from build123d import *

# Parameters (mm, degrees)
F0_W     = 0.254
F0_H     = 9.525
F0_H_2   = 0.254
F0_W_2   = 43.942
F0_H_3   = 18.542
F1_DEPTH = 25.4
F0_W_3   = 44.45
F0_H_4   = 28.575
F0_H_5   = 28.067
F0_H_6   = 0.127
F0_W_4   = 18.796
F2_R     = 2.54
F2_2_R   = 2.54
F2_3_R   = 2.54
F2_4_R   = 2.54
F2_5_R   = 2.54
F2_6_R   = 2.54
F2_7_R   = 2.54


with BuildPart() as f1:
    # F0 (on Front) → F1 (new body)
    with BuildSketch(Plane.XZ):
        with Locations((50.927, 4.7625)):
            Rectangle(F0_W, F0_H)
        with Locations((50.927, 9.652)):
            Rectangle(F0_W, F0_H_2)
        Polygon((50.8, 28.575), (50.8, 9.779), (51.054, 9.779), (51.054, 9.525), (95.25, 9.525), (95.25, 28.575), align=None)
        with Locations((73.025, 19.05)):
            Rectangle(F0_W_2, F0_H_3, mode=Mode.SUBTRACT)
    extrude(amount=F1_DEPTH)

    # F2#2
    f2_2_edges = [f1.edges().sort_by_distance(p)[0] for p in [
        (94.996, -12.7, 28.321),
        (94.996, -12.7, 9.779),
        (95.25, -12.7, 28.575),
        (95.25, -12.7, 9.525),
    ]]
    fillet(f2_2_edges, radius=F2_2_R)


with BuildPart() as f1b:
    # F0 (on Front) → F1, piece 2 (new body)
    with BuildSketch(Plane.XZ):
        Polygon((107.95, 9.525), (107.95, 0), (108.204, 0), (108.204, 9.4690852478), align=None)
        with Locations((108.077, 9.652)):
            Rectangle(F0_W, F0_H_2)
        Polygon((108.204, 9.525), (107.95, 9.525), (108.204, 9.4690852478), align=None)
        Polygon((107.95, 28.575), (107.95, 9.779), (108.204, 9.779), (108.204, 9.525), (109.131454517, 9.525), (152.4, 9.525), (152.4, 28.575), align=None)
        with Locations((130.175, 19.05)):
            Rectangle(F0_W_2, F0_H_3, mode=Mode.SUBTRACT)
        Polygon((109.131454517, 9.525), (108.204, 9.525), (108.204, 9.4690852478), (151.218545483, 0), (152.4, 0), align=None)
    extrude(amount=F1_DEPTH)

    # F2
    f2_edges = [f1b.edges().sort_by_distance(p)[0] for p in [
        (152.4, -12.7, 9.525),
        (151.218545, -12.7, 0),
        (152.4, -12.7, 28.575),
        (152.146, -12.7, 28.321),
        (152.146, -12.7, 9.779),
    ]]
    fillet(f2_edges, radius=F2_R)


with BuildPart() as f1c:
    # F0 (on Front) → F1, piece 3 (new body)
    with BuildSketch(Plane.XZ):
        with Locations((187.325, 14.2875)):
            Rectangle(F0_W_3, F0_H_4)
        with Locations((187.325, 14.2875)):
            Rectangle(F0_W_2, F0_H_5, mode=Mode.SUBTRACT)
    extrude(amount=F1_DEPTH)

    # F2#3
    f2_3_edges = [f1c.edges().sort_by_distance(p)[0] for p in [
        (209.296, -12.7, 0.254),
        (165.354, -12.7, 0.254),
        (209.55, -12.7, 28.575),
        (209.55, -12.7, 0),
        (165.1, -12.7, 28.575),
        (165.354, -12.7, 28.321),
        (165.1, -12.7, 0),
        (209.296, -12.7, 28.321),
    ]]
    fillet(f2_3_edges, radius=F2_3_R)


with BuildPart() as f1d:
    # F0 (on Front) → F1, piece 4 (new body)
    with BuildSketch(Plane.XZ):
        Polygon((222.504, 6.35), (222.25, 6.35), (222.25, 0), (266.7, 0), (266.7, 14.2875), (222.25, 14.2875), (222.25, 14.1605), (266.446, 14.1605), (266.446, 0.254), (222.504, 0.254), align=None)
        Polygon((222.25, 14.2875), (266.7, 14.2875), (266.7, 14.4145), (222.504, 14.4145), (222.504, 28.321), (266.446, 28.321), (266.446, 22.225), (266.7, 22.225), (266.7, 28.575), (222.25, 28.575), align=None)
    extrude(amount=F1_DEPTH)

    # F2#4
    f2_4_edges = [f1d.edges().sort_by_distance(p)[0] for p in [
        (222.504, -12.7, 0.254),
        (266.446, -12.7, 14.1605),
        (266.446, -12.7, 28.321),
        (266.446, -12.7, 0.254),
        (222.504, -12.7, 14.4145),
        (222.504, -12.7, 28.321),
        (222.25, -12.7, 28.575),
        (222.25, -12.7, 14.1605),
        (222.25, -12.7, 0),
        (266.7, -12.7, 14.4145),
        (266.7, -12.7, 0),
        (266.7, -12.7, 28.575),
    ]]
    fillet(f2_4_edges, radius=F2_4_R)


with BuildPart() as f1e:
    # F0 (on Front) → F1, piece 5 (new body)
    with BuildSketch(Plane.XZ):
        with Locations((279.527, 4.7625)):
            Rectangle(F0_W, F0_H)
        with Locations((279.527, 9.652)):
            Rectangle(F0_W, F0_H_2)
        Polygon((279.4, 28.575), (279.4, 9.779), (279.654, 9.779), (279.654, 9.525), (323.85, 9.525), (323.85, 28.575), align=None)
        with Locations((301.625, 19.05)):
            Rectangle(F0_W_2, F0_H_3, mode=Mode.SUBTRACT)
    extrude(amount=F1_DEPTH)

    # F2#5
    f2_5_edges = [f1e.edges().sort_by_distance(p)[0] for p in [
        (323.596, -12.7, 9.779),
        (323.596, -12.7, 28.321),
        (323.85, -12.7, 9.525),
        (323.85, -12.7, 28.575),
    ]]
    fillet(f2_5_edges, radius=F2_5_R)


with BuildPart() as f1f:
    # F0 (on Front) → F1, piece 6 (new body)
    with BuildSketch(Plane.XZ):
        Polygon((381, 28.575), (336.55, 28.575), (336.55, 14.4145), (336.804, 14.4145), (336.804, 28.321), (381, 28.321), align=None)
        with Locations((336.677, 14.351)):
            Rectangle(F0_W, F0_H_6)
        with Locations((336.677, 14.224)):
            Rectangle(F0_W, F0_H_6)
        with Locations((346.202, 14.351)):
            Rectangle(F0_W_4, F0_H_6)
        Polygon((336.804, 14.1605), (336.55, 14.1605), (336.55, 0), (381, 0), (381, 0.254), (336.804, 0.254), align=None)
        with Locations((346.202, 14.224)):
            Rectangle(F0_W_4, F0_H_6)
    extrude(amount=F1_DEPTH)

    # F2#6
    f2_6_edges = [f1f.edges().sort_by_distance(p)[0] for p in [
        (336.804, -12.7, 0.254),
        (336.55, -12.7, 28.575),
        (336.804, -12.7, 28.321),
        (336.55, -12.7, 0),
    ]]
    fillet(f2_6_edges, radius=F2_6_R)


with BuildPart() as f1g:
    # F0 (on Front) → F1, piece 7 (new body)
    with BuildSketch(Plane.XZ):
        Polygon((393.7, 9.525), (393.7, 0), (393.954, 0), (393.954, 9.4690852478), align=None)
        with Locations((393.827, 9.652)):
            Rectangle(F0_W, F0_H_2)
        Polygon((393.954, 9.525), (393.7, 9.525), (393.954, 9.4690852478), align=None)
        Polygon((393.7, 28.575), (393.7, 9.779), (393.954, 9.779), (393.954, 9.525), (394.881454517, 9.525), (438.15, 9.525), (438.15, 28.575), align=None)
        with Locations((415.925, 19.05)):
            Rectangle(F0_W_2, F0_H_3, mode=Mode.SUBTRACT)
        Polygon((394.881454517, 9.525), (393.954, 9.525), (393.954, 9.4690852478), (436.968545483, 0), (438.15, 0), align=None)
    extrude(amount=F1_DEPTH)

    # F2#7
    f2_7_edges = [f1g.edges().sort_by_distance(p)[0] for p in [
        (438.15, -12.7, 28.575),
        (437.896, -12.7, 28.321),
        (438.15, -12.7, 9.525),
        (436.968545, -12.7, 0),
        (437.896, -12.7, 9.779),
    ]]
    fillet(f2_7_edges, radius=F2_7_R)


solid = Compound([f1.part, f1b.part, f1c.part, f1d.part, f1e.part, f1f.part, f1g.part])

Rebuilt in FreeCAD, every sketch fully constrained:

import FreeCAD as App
import Part
import Sketcher

V = App.Vector
Q = App.Units.Quantity


def edges_at(feature, points):
    """Names of the edges that pass closest to the given points."""
    edges = feature.Shape.Edges
    near = lambda p: min(range(len(edges)), key=lambda i: edges[i].distToShape(Part.Vertex(*p))[0])
    return sorted({f"Edge{near(p) + 1}" for p in points})


def add_polygon(sketch, points):
    """Adds a closed chain of lines whose ends are joined by coincident constraints."""
    first, n = sketch.GeometryCount, len(points)
    for a, b in zip(points, points[1:] + points[:1]):
        sketch.addGeometry(Part.LineSegment(App.Vector(*a, 0), App.Vector(*b, 0)), False)
    for i in range(n):
        sketch.addConstraint(Sketcher.Constraint("Coincident", first + i, 2, first + (i + 1) % n, 1))

doc = App.newDocument("Part")
body = doc.addObject("PartDesign::Body", "Body")

sketch1 = body.newObject("Sketcher::SketchObject", "Sketch")
sketch1.AttachmentSupport = (doc.getObject("XZ_Plane"), [""])
sketch1.MapMode = "FlatFace"
add_polygon(sketch1, [(50.8, 0), (51.054, 0), (51.054, 9.525), (95.25, 9.525), (95.25, 28.575), (50.8, 28.575)])
add_polygon(sketch1, [(94.996, 9.779), (51.054, 9.779), (51.054, 28.321), (94.996, 28.321)])
sketch1.addConstraint(Sketcher.Constraint("Horizontal", 0))
sketch1.addConstraint(Sketcher.Constraint("Vertical", 1))
sketch1.addConstraint(Sketcher.Constraint("Horizontal", 2))
sketch1.addConstraint(Sketcher.Constraint("Vertical", 3))
sketch1.addConstraint(Sketcher.Constraint("Horizontal", 4))
sketch1.addConstraint(Sketcher.Constraint("Vertical", 5))
sketch1.addConstraint(Sketcher.Constraint("Horizontal", 6))
sketch1.addConstraint(Sketcher.Constraint("Vertical", 7))
sketch1.addConstraint(Sketcher.Constraint("Horizontal", 8))
sketch1.addConstraint(Sketcher.Constraint("Vertical", 9))
sketch1.addConstraint(Sketcher.Constraint("PointOnObject", 0, 2, -1))
sketch1.addConstraint(Sketcher.Constraint("Vertical", 1, 2, 6, 2))
sketch1.addConstraint(Sketcher.Constraint("DistanceX", -1, 1, 4, 2, Q("2 in")))
sketch1.addConstraint(Sketcher.Constraint("DistanceX", 0, 1, 0, 2, Q("0.01 in")))
sketch1.addConstraint(Sketcher.Constraint("DistanceX", 2, 1, 2, 2, Q("1.74 in")))
sketch1.addConstraint(Sketcher.Constraint("DistanceX", 6, 2, 6, 1, Q("1.73 in")))
sketch1.addConstraint(Sketcher.Constraint("DistanceY", 3, 1, 3, 2, Q("0.75 in")))
sketch1.addConstraint(Sketcher.Constraint("DistanceY", 7, 1, 7, 2, Q("0.73 in")))
sketch1.addConstraint(Sketcher.Constraint("DistanceY", 1, 1, 1, 2, Q("0.375 in")))
sketch1.addConstraint(Sketcher.Constraint("DistanceY", 1, 2, 6, 2, Q("0.01 in")))
pad1 = body.newObject("PartDesign::Pad", "Pad")
pad1.Profile = sketch1
pad1.Length = Q("1 in")
doc.recompute()

fillet = body.newObject("PartDesign::Fillet", "Fillet")
fillet.Base = (pad1, edges_at(pad1, [
    (94.996, -12.7, 28.321),
    (94.996, -12.7, 9.779),
    (95.25, -12.7, 28.575),
    (95.25, -12.7, 9.525),
]))
fillet.Radius = Q("0.1 in")
body2 = doc.addObject("PartDesign::Body", "Body001")

sketch2 = body2.newObject("Sketcher::SketchObject", "Sketch001")
sketch2.AttachmentSupport = (doc.getObject("XZ_Plane001"), [""])
sketch2.MapMode = "FlatFace"
add_polygon(sketch2, [(107.95, 0), (108.204, 0), (108.204, 9.469085), (151.218545, 0), (152.4, 0), (109.131455, 9.525), (152.4, 9.525), (152.4, 28.575), (107.95, 28.575)])
add_polygon(sketch2, [(152.146, 9.779), (108.204, 9.779), (108.204, 28.321), (152.146, 28.321)])
sketch2.addConstraint(Sketcher.Constraint("Horizontal", 0))
sketch2.addConstraint(Sketcher.Constraint("Vertical", 1))
sketch2.addConstraint(Sketcher.Constraint("Horizontal", 3))
sketch2.addConstraint(Sketcher.Constraint("Horizontal", 5))
sketch2.addConstraint(Sketcher.Constraint("Vertical", 6))
sketch2.addConstraint(Sketcher.Constraint("Horizontal", 7))
sketch2.addConstraint(Sketcher.Constraint("Vertical", 8))
sketch2.addConstraint(Sketcher.Constraint("Horizontal", 9))
sketch2.addConstraint(Sketcher.Constraint("Vertical", 10))
sketch2.addConstraint(Sketcher.Constraint("Horizontal", 11))
sketch2.addConstraint(Sketcher.Constraint("Vertical", 12))
sketch2.addConstraint(Sketcher.Constraint("PointOnObject", 0, 2, -1))
sketch2.addConstraint(Sketcher.Constraint("PointOnObject", 2, 2, -1))
sketch2.addConstraint(Sketcher.Constraint("Parallel", 2, 4))
sketch2.addConstraint(Sketcher.Constraint("Vertical", 3, 2, 5, 2))
sketch2.addConstraint(Sketcher.Constraint("Vertical", 1, 2, 9, 2))
sketch2.addConstraint(Sketcher.Constraint("DistanceX", -1, 1, 3, 2, Q("6 in")))
sketch2.addConstraint(Sketcher.Constraint("DistanceX", 0, 1, 0, 2, Q("0.01 in")))
sketch2.addConstraint(Sketcher.Constraint("DistanceX", 7, 2, 7, 1, Q("1.75 in")))
sketch2.addConstraint(Sketcher.Constraint("DistanceX", 9, 2, 9, 1, Q("1.73 in")))
sketch2.addConstraint(Sketcher.Constraint("DistanceY", 6, 1, 6, 2, Q("0.75 in")))
sketch2.addConstraint(Sketcher.Constraint("DistanceY", 10, 1, 10, 2, Q("0.73 in")))
sketch2.addConstraint(Sketcher.Constraint("DistanceY", 8, 2, 8, 1, Q("1.125 in")))
sketch2.addConstraint(Sketcher.Constraint("DistanceY", 4, 2, 9, 2, Q("0.01 in")))
sketch2.addConstraint(Sketcher.Constraint("DistanceX", 3, 1, 3, 2, Q("1.181455 mm")))
sketch2.addConstraint(Sketcher.Constraint("DistanceX", 5, 1, 5, 2, Q("43.268545 mm")))
pad2 = body2.newObject("PartDesign::Pad", "Pad001")
pad2.Profile = sketch2
pad2.Length = Q("1 in")
doc.recompute()

fillet2 = body2.newObject("PartDesign::Fillet", "Fillet001")
fillet2.Base = (pad2, edges_at(pad2, [
    (152.4, -12.7, 9.525),
    (151.219, -12.7, 0),
    (152.4, -12.7, 28.575),
    (152.146, -12.7, 28.321),
    (152.146, -12.7, 9.779),
]))
fillet2.Radius = Q("0.1 in")
body3 = doc.addObject("PartDesign::Body", "Body002")

sketch3 = body3.newObject("Sketcher::SketchObject", "Sketch002")
sketch3.AttachmentSupport = (doc.getObject("XZ_Plane002"), [""])
sketch3.MapMode = "FlatFace"
add_polygon(sketch3, [(165.1, 28.575), (165.1, 0), (209.55, 0), (209.55, 28.575)])
add_polygon(sketch3, [(209.296, 0.254), (165.354, 0.254), (165.354, 28.321), (209.296, 28.321)])
sketch3.addConstraint(Sketcher.Constraint("Vertical", 0))
sketch3.addConstraint(Sketcher.Constraint("Horizontal", 1))
sketch3.addConstraint(Sketcher.Constraint("Vertical", 2))
sketch3.addConstraint(Sketcher.Constraint("Horizontal", 3))
sketch3.addConstraint(Sketcher.Constraint("Horizontal", 4))
sketch3.addConstraint(Sketcher.Constraint("Vertical", 5))
sketch3.addConstraint(Sketcher.Constraint("Horizontal", 6))
sketch3.addConstraint(Sketcher.Constraint("Vertical", 7))
sketch3.addConstraint(Sketcher.Constraint("PointOnObject", 0, 2, -1))
sketch3.addConstraint(Sketcher.Constraint("DistanceX", 1, 1, 1, 2, Q("1.75 in")))
sketch3.addConstraint(Sketcher.Constraint("DistanceX", 4, 2, 4, 1, Q("1.73 in")))
sketch3.addConstraint(Sketcher.Constraint("DistanceX", -1, 1, 0, 2, Q("6.5 in")))
sketch3.addConstraint(Sketcher.Constraint("DistanceY", 0, 2, 0, 1, Q("1.125 in")))
sketch3.addConstraint(Sketcher.Constraint("DistanceY", 5, 1, 5, 2, Q("1.105 in")))
sketch3.addConstraint(Sketcher.Constraint("DistanceX", -1, 1, 4, 2, Q("6.51 in")))
sketch3.addConstraint(Sketcher.Constraint("DistanceY", -1, 1, 4, 2, Q("0.01 in")))
pad3 = body3.newObject("PartDesign::Pad", "Pad002")
pad3.Profile = sketch3
pad3.Length = Q("1 in")
doc.recompute()

fillet3 = body3.newObject("PartDesign::Fillet", "Fillet002")
fillet3.Base = (pad3, edges_at(pad3, [
    (209.296, -12.7, 0.254),
    (165.354, -12.7, 0.254),
    (209.55, -12.7, 28.575),
    (209.55, -12.7, 0),
    (165.1, -12.7, 28.575),
    (165.354, -12.7, 28.321),
    (165.1, -12.7, 0),
    (209.296, -12.7, 28.321),
]))
fillet3.Radius = Q("0.1 in")
body4 = doc.addObject("PartDesign::Body", "Body003")

sketch4 = body4.newObject("Sketcher::SketchObject", "Sketch003")
sketch4.AttachmentSupport = (doc.getObject("XZ_Plane003"), [""])
sketch4.MapMode = "FlatFace"
add_polygon(sketch4, [(222.504, 6.35), (222.25, 6.35), (222.25, 0), (266.7, 0), (266.7, 14.4145), (222.504, 14.4145), (222.504, 28.321), (266.446, 28.321), (266.446, 22.225), (266.7, 22.225), (266.7, 28.575), (222.25, 28.575), (222.25, 14.1605), (266.446, 14.1605), (266.446, 0.254), (222.504, 0.254)])
sketch4.addConstraint(Sketcher.Constraint("Horizontal", 0))
sketch4.addConstraint(Sketcher.Constraint("Vertical", 1))
sketch4.addConstraint(Sketcher.Constraint("Horizontal", 2))
sketch4.addConstraint(Sketcher.Constraint("Vertical", 3))
sketch4.addConstraint(Sketcher.Constraint("Horizontal", 4))
sketch4.addConstraint(Sketcher.Constraint("Vertical", 5))
sketch4.addConstraint(Sketcher.Constraint("Horizontal", 6))
sketch4.addConstraint(Sketcher.Constraint("Vertical", 7))
sketch4.addConstraint(Sketcher.Constraint("Horizontal", 8))
sketch4.addConstraint(Sketcher.Constraint("Vertical", 9))
sketch4.addConstraint(Sketcher.Constraint("Horizontal", 10))
sketch4.addConstraint(Sketcher.Constraint("Vertical", 11))
sketch4.addConstraint(Sketcher.Constraint("Horizontal", 12))
sketch4.addConstraint(Sketcher.Constraint("Vertical", 13))
sketch4.addConstraint(Sketcher.Constraint("Horizontal", 14))
sketch4.addConstraint(Sketcher.Constraint("Vertical", 15))
sketch4.addConstraint(Sketcher.Constraint("PointOnObject", 1, 2, -1))
sketch4.addConstraint(Sketcher.Constraint("Vertical", 3, 2, 8, 2))
sketch4.addConstraint(Sketcher.Constraint("Vertical", 1, 2, 10, 2))
sketch4.addConstraint(Sketcher.Constraint("Vertical", 7, 2, 12, 2))
sketch4.addConstraint(Sketcher.Constraint("Vertical", 5, 2, 14, 2))
sketch4.addConstraint(Sketcher.Constraint("Equal", 0, 8))
sketch4.addConstraint(Sketcher.Constraint("Equal", 1, 9))
sketch4.addConstraint(Sketcher.Constraint("Equal", 3, 11))
sketch4.addConstraint(Sketcher.Constraint("Equal", 5, 13))
sketch4.addConstraint(Sketcher.Constraint("DistanceX", 0, 2, 0, 1, Q("0.01 in")))
sketch4.addConstraint(Sketcher.Constraint("DistanceX", 2, 1, 2, 2, Q("1.75 in")))
sketch4.addConstraint(Sketcher.Constraint("DistanceY", 1, 2, 1, 1, Q("0.25 in")))
sketch4.addConstraint(Sketcher.Constraint("DistanceY", 7, 2, 7, 1, Q("0.24 in")))
sketch4.addConstraint(Sketcher.Constraint("DistanceX", -1, 1, 2, 2, Q("10.5 in")))
sketch4.addConstraint(Sketcher.Constraint("DistanceY", 11, 2, 4, 2, Q("0.01 in")))
sketch4.addConstraint(Sketcher.Constraint("DistanceY", 3, 1, 3, 2, Q("0.5675 in")))
pad4 = body4.newObject("PartDesign::Pad", "Pad003")
pad4.Profile = sketch4
pad4.Length = Q("1 in")
doc.recompute()

fillet4 = body4.newObject("PartDesign::Fillet", "Fillet003")
fillet4.Base = (pad4, edges_at(pad4, [
    (222.504, -12.7, 0.254),
    (266.446, -12.7, 14.161),
    (266.446, -12.7, 28.321),
    (266.446, -12.7, 0.254),
    (222.504, -12.7, 14.415),
    (222.504, -12.7, 28.321),
    (222.25, -12.7, 28.575),
    (222.25, -12.7, 14.161),
    (222.25, -12.7, 0),
    (266.7, -12.7, 14.415),
    (266.7, -12.7, 0),
    (266.7, -12.7, 28.575),
]))
fillet4.Radius = Q("0.1 in")
body5 = doc.addObject("PartDesign::Body", "Body004")

sketch5 = body5.newObject("Sketcher::SketchObject", "Sketch004")
sketch5.AttachmentSupport = (doc.getObject("XZ_Plane004"), [""])
sketch5.MapMode = "FlatFace"
add_polygon(sketch5, [(279.4, 0), (279.654, 0), (279.654, 9.525), (323.85, 9.525), (323.85, 28.575), (279.4, 28.575)])
add_polygon(sketch5, [(323.596, 9.779), (279.654, 9.779), (279.654, 28.321), (323.596, 28.321)])
sketch5.addConstraint(Sketcher.Constraint("Horizontal", 0))
sketch5.addConstraint(Sketcher.Constraint("Vertical", 1))
sketch5.addConstraint(Sketcher.Constraint("Horizontal", 2))
sketch5.addConstraint(Sketcher.Constraint("Vertical", 3))
sketch5.addConstraint(Sketcher.Constraint("Horizontal", 4))
sketch5.addConstraint(Sketcher.Constraint("Vertical", 5))
sketch5.addConstraint(Sketcher.Constraint("Horizontal", 6))
sketch5.addConstraint(Sketcher.Constraint("Vertical", 7))
sketch5.addConstraint(Sketcher.Constraint("Horizontal", 8))
sketch5.addConstraint(Sketcher.Constraint("Vertical", 9))
sketch5.addConstraint(Sketcher.Constraint("PointOnObject", 0, 2, -1))
sketch5.addConstraint(Sketcher.Constraint("Vertical", 1, 2, 6, 2))
sketch5.addConstraint(Sketcher.Constraint("DistanceX", -1, 1, 4, 2, Q("11 in")))
sketch5.addConstraint(Sketcher.Constraint("DistanceX", 0, 1, 0, 2, Q("0.01 in")))
sketch5.addConstraint(Sketcher.Constraint("DistanceX", 2, 1, 2, 2, Q("1.74 in")))
sketch5.addConstraint(Sketcher.Constraint("DistanceX", 6, 2, 6, 1, Q("1.73 in")))
sketch5.addConstraint(Sketcher.Constraint("DistanceY", 3, 1, 3, 2, Q("0.75 in")))
sketch5.addConstraint(Sketcher.Constraint("DistanceY", 7, 1, 7, 2, Q("0.73 in")))
sketch5.addConstraint(Sketcher.Constraint("DistanceY", 1, 1, 1, 2, Q("0.375 in")))
sketch5.addConstraint(Sketcher.Constraint("DistanceY", 1, 2, 6, 2, Q("0.01 in")))
pad5 = body5.newObject("PartDesign::Pad", "Pad004")
pad5.Profile = sketch5
pad5.Length = Q("1 in")
doc.recompute()

fillet5 = body5.newObject("PartDesign::Fillet", "Fillet004")
fillet5.Base = (pad5, edges_at(pad5, [
    (323.596, -12.7, 9.779),
    (323.596, -12.7, 28.321),
    (323.85, -12.7, 9.525),
    (323.85, -12.7, 28.575),
]))
fillet5.Radius = Q("0.1 in")
body6 = doc.addObject("PartDesign::Body", "Body005")

sketch6 = body6.newObject("Sketcher::SketchObject", "Sketch005")
sketch6.AttachmentSupport = (doc.getObject("XZ_Plane005"), [""])
sketch6.MapMode = "FlatFace"
add_polygon(sketch6, [(381, 28.575), (336.55, 28.575), (336.55, 0), (381, 0), (381, 0.254), (336.804, 0.254), (336.804, 14.1605), (355.6, 14.1605), (355.6, 14.4145), (336.804, 14.4145), (336.804, 28.321), (381, 28.321)])
sketch6.addConstraint(Sketcher.Constraint("Horizontal", 0))
sketch6.addConstraint(Sketcher.Constraint("Vertical", 1))
sketch6.addConstraint(Sketcher.Constraint("Horizontal", 2))
sketch6.addConstraint(Sketcher.Constraint("Vertical", 3))
sketch6.addConstraint(Sketcher.Constraint("Horizontal", 4))
sketch6.addConstraint(Sketcher.Constraint("Vertical", 5))
sketch6.addConstraint(Sketcher.Constraint("Horizontal", 6))
sketch6.addConstraint(Sketcher.Constraint("Vertical", 7))
sketch6.addConstraint(Sketcher.Constraint("Horizontal", 8))
sketch6.addConstraint(Sketcher.Constraint("Vertical", 9))
sketch6.addConstraint(Sketcher.Constraint("Horizontal", 10))
sketch6.addConstraint(Sketcher.Constraint("Vertical", 11))
sketch6.addConstraint(Sketcher.Constraint("PointOnObject", 1, 2, -1))
sketch6.addConstraint(Sketcher.Constraint("Vertical", 5, 2, 8, 2))
sketch6.addConstraint(Sketcher.Constraint("Vertical", 3, 2, 10, 2))
sketch6.addConstraint(Sketcher.Constraint("Equal", 3, 7))
sketch6.addConstraint(Sketcher.Constraint("Equal", 5, 9))
sketch6.addConstraint(Sketcher.Constraint("Equal", 7, 11))
sketch6.addConstraint(Sketcher.Constraint("DistanceX", -1, 1, 2, 2, Q("15 in")))
sketch6.addConstraint(Sketcher.Constraint("DistanceX", -1, 1, 6, 2, Q("14 in")))
sketch6.addConstraint(Sketcher.Constraint("DistanceX", 0, 2, 0, 1, Q("1.75 in")))
sketch6.addConstraint(Sketcher.Constraint("DistanceX", 4, 2, 4, 1, Q("1.74 in")))
sketch6.addConstraint(Sketcher.Constraint("DistanceY", 3, 1, 3, 2, Q("0.01 in")))
sketch6.addConstraint(Sketcher.Constraint("DistanceY", 1, 2, 1, 1, Q("1.125 in")))
pad6 = body6.newObject("PartDesign::Pad", "Pad005")
pad6.Profile = sketch6
pad6.Length = Q("1 in")
doc.recompute()

fillet6 = body6.newObject("PartDesign::Fillet", "Fillet005")
fillet6.Base = (pad6, edges_at(pad6, [
    (336.804, -12.7, 0.254),
    (336.55, -12.7, 28.575),
    (336.804, -12.7, 28.321),
    (336.55, -12.7, 0),
]))
fillet6.Radius = Q("0.1 in")
body7 = doc.addObject("PartDesign::Body", "Body006")

sketch7 = body7.newObject("Sketcher::SketchObject", "Sketch006")
sketch7.AttachmentSupport = (doc.getObject("XZ_Plane006"), [""])
sketch7.MapMode = "FlatFace"
add_polygon(sketch7, [(393.7, 0), (393.954, 0), (393.954, 9.469085), (436.968545, 0), (438.15, 0), (394.881455, 9.525), (438.15, 9.525), (438.15, 28.575), (393.7, 28.575)])
add_polygon(sketch7, [(437.896, 9.779), (393.954, 9.779), (393.954, 28.321), (437.896, 28.321)])
sketch7.addConstraint(Sketcher.Constraint("Horizontal", 0))
sketch7.addConstraint(Sketcher.Constraint("Vertical", 1))
sketch7.addConstraint(Sketcher.Constraint("Horizontal", 3))
sketch7.addConstraint(Sketcher.Constraint("Horizontal", 5))
sketch7.addConstraint(Sketcher.Constraint("Vertical", 6))
sketch7.addConstraint(Sketcher.Constraint("Horizontal", 7))
sketch7.addConstraint(Sketcher.Constraint("Vertical", 8))
sketch7.addConstraint(Sketcher.Constraint("Horizontal", 9))
sketch7.addConstraint(Sketcher.Constraint("Vertical", 10))
sketch7.addConstraint(Sketcher.Constraint("Horizontal", 11))
sketch7.addConstraint(Sketcher.Constraint("Vertical", 12))
sketch7.addConstraint(Sketcher.Constraint("PointOnObject", 0, 2, -1))
sketch7.addConstraint(Sketcher.Constraint("PointOnObject", 2, 2, -1))
sketch7.addConstraint(Sketcher.Constraint("Parallel", 2, 4))
sketch7.addConstraint(Sketcher.Constraint("Vertical", 3, 2, 5, 2))
sketch7.addConstraint(Sketcher.Constraint("Vertical", 1, 2, 9, 2))
sketch7.addConstraint(Sketcher.Constraint("DistanceX", 0, 1, 0, 2, Q("0.01 in")))
sketch7.addConstraint(Sketcher.Constraint("DistanceX", 7, 2, 7, 1, Q("1.75 in")))
sketch7.addConstraint(Sketcher.Constraint("DistanceX", 9, 2, 9, 1, Q("1.73 in")))
sketch7.addConstraint(Sketcher.Constraint("DistanceY", 6, 1, 6, 2, Q("0.75 in")))
sketch7.addConstraint(Sketcher.Constraint("DistanceY", 10, 1, 10, 2, Q("0.73 in")))
sketch7.addConstraint(Sketcher.Constraint("DistanceX", -1, 1, 7, 2, Q("15.5 in")))
sketch7.addConstraint(Sketcher.Constraint("DistanceY", 8, 2, 8, 1, Q("1.125 in")))
sketch7.addConstraint(Sketcher.Constraint("DistanceY", 4, 2, 9, 2, Q("0.01 in")))
sketch7.addConstraint(Sketcher.Constraint("DistanceX", 3, 1, 3, 2, Q("1.181455 mm")))
sketch7.addConstraint(Sketcher.Constraint("DistanceX", 5, 1, 5, 2, Q("43.268545 mm")))
pad7 = body7.newObject("PartDesign::Pad", "Pad006")
pad7.Profile = sketch7
pad7.Length = Q("1 in")
doc.recompute()

fillet7 = body7.newObject("PartDesign::Fillet", "Fillet006")
fillet7.Base = (pad7, edges_at(pad7, [
    (438.15, -12.7, 28.575),
    (437.896, -12.7, 28.321),
    (438.15, -12.7, 9.525),
    (436.969, -12.7, 0),
    (437.896, -12.7, 9.779),
]))
fillet7.Radius = Q("0.1 in")

doc.recompute()
